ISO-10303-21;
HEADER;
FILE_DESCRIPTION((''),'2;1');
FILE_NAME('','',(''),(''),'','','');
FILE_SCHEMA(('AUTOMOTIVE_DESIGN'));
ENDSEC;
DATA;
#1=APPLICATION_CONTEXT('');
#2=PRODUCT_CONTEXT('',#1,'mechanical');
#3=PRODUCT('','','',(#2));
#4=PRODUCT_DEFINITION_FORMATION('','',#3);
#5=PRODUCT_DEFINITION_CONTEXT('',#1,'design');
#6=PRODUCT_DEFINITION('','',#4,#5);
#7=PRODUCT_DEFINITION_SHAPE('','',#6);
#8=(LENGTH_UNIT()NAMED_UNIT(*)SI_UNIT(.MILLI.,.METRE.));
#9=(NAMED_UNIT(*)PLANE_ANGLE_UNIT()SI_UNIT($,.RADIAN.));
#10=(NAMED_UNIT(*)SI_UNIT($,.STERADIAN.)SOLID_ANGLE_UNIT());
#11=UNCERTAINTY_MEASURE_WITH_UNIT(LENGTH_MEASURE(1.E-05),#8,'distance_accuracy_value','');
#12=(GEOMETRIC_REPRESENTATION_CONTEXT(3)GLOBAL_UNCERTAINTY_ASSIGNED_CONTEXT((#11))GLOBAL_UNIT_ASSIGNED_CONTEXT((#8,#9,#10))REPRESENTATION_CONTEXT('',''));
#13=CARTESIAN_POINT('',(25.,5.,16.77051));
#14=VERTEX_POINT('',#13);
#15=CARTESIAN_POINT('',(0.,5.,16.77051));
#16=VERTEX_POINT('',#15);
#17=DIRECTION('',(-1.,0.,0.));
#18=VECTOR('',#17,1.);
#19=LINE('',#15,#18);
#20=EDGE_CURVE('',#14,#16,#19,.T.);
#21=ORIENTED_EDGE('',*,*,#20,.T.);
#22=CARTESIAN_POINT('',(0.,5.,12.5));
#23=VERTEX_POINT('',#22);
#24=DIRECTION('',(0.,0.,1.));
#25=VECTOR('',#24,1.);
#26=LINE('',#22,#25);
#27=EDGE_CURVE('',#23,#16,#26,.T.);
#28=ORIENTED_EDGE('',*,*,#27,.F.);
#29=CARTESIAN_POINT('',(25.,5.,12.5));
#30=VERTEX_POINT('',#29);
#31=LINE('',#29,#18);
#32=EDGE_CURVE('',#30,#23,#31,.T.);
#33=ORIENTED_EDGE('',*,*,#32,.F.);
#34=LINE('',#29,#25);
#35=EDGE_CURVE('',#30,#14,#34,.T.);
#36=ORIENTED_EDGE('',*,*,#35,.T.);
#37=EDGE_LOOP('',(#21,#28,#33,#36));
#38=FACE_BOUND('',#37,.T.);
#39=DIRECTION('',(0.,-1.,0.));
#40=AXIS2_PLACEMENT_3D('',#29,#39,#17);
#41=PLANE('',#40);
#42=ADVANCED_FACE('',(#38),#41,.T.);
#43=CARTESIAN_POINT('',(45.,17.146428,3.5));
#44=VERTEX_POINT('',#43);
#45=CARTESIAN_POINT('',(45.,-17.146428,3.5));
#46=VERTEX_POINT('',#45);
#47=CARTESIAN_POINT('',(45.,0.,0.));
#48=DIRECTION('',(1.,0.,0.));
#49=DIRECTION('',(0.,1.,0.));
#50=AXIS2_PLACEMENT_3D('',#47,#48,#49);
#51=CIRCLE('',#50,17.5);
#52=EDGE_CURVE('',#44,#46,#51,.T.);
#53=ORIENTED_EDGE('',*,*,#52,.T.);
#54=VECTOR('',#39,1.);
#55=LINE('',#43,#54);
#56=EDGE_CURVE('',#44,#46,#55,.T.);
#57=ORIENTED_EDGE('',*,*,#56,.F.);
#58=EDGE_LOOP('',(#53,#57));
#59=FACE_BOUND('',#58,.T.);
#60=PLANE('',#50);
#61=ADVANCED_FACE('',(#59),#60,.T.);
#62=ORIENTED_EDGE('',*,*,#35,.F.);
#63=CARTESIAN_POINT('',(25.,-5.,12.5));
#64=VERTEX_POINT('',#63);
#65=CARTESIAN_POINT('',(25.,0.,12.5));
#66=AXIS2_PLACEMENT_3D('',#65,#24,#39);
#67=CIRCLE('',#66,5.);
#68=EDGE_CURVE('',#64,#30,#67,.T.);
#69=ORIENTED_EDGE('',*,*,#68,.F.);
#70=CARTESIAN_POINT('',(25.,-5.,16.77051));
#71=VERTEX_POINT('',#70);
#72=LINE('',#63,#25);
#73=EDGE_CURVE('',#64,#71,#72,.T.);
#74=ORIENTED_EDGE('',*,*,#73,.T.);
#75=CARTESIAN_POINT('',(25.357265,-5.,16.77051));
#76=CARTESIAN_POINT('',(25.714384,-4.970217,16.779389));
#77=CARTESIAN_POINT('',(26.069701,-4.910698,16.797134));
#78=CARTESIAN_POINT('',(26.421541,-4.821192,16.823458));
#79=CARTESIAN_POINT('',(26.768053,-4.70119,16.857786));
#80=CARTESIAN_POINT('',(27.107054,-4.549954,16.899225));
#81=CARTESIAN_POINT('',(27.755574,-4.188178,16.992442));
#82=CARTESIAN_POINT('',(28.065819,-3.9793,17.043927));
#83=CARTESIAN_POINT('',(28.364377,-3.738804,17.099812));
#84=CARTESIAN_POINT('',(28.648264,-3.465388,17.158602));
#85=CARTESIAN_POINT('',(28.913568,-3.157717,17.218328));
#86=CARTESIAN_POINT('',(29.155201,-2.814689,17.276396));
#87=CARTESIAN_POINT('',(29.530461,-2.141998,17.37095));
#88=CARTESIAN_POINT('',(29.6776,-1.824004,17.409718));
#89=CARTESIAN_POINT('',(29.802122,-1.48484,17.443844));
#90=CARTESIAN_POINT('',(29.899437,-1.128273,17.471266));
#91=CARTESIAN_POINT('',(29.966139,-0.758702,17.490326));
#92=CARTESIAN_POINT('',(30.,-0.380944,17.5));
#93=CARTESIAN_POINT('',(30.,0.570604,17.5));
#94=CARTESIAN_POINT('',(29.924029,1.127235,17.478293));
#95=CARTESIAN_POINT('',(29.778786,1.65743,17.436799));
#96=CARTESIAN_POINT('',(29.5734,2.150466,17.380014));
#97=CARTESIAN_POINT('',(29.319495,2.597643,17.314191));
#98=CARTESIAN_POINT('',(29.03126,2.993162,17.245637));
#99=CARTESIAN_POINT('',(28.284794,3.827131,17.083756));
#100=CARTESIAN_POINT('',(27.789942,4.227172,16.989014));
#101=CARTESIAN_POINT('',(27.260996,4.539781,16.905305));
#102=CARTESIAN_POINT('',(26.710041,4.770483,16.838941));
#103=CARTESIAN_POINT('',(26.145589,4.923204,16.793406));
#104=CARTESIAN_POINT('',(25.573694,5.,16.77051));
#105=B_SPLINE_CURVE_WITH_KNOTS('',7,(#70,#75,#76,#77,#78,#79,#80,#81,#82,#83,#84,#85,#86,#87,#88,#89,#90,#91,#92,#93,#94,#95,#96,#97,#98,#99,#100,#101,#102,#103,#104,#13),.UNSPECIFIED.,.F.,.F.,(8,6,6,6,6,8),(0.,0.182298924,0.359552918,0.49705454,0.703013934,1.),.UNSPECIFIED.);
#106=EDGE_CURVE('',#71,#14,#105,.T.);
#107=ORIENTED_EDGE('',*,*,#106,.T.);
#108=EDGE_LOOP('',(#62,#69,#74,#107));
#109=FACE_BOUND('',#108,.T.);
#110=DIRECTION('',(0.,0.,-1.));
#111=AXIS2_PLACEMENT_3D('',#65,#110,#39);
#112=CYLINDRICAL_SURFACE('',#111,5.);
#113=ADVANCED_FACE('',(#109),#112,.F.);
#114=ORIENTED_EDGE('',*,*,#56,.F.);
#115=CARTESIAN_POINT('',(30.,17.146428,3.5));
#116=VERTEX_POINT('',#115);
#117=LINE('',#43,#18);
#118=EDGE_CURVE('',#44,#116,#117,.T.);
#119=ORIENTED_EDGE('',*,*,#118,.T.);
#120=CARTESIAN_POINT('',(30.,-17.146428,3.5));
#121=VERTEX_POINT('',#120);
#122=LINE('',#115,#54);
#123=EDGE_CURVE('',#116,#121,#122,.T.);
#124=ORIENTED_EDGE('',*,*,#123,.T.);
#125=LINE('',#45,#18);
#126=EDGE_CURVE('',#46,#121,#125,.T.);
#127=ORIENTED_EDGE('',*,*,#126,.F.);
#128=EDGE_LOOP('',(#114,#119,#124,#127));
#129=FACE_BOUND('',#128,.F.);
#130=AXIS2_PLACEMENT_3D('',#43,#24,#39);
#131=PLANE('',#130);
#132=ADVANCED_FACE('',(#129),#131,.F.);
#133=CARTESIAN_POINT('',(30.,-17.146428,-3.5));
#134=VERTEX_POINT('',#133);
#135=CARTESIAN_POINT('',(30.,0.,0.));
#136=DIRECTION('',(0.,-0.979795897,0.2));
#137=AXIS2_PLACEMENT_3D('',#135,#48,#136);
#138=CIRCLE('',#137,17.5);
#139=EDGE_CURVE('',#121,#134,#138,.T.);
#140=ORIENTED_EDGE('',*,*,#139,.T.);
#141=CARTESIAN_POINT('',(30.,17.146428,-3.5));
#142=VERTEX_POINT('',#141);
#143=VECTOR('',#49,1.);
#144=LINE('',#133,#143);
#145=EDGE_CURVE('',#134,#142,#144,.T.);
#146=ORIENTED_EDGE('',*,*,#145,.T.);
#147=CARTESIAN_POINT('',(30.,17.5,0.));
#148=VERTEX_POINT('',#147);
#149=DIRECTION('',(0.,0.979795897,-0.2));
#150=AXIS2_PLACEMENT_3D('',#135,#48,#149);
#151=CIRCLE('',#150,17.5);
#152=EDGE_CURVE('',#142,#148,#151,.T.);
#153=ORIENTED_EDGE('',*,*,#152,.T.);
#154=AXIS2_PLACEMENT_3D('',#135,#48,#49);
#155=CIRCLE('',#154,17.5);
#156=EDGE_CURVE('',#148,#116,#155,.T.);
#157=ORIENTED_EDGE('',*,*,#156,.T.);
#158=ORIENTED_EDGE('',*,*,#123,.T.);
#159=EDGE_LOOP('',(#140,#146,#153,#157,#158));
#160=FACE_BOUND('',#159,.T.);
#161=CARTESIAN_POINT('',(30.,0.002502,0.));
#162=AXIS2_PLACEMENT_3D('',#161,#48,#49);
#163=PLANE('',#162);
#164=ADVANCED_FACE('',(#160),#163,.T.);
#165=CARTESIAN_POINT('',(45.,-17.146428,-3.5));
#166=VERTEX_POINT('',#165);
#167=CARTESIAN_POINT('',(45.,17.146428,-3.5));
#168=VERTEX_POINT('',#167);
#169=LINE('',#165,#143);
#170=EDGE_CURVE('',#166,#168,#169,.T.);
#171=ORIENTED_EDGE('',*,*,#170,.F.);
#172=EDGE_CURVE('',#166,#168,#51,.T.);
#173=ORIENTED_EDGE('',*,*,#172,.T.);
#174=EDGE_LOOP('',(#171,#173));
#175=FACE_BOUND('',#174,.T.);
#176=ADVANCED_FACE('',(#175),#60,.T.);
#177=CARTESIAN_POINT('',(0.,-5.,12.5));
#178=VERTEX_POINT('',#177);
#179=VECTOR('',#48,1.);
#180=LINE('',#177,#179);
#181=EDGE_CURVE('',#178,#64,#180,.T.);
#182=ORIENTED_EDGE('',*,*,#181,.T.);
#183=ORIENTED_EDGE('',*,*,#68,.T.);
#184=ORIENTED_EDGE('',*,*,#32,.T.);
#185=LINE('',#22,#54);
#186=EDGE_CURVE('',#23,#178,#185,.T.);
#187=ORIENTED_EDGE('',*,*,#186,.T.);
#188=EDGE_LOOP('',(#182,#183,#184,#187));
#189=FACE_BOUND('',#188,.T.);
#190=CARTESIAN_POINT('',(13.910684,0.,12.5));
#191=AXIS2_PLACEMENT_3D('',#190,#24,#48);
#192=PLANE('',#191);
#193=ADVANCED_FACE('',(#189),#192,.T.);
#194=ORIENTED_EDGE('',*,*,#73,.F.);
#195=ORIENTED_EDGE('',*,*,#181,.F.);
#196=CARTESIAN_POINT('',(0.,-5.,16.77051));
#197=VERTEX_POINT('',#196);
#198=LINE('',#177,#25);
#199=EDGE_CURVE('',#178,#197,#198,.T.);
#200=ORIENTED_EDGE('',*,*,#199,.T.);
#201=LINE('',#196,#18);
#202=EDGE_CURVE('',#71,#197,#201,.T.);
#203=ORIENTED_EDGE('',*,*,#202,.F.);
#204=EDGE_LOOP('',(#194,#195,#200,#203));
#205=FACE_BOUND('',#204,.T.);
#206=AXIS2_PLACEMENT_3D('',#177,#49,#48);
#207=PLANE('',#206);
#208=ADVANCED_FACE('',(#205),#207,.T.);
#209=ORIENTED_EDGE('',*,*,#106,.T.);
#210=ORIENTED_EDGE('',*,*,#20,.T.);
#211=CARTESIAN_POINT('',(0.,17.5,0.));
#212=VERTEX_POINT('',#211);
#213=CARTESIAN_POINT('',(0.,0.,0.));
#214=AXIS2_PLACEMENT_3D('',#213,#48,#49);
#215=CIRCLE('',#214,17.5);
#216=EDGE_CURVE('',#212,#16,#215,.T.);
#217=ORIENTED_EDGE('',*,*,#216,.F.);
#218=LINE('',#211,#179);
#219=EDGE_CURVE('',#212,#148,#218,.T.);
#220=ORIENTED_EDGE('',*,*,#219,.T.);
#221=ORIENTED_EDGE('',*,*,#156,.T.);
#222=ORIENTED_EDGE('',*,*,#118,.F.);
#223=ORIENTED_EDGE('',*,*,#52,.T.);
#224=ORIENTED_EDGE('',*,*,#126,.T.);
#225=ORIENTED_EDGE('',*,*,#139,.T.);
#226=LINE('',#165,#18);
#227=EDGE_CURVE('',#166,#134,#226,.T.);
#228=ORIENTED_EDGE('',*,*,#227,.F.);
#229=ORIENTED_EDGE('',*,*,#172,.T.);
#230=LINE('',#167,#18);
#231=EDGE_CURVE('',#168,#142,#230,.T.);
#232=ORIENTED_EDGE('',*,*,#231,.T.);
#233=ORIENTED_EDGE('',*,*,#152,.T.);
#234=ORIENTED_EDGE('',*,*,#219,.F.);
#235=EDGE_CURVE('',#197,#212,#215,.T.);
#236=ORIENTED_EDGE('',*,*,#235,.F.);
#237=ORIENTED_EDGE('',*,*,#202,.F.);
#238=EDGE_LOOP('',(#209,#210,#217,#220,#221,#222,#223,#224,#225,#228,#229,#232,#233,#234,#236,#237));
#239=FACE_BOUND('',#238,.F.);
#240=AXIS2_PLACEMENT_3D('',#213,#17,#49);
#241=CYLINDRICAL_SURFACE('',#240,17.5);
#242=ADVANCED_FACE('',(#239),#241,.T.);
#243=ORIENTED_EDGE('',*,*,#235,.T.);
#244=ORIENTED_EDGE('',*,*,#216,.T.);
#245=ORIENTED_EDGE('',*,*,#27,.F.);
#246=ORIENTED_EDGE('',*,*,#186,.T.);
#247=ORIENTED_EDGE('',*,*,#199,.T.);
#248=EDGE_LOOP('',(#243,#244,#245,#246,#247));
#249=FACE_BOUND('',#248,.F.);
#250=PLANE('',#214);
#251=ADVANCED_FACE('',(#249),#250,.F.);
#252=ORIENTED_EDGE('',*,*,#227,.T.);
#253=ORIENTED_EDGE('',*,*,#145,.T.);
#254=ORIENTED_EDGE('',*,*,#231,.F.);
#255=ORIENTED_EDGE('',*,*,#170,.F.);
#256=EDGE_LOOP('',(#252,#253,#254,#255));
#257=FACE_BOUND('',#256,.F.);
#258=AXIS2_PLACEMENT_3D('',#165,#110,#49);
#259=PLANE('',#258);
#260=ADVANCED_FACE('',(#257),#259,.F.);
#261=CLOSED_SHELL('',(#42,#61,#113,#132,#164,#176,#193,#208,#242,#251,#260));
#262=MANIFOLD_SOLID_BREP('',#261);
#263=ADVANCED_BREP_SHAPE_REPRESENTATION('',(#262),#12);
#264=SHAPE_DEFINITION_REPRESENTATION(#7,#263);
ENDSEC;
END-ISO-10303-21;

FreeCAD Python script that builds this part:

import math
import FreeCAD as App
import Part
import Sketcher

doc = App.newDocument("Part")
body = doc.addObject("PartDesign::Body", "Body")

# Sketch on YZ plane
sketch1 = body.newObject("Sketcher::SketchObject", "Sketch")
sketch1.AttachmentSupport = (doc.getObject("YZ_Plane"), [""])
sketch1.MapMode = "FlatFace"
sketch1.addGeometry(Part.Circle(App.Vector(0, 0, 0), App.Vector(0, 0, 1), 18), False)
sketch1.addConstraint(Sketcher.Constraint("Coincident", 0, 3, -1, 1))
sketch1.addConstraint(Sketcher.Constraint("Diameter", 0, 35.0))
pad1 = body.newObject("PartDesign::Pad", "Pad")
pad1.Profile = sketch1
pad1.Length = 45

# Sketch on YZ plane
sketch2 = body.newObject("Sketcher::SketchObject", "Sketch001")
sketch2.AttachmentSupport = (doc.getObject("YZ_Plane"), [""])
sketch2.MapMode = "FlatFace"
sketch2.AttachmentOffset = App.Placement(App.Vector(0, 0, 45), App.Rotation())
sketch2.addGeometry(Part.LineSegment(App.Vector(17.1, 3.5, 0), App.Vector(-17.1, 3.5, 0)), False)
sketch2.addGeometry(Part.ArcOfCircle(Part.Circle(App.Vector(0, 0, 0), App.Vector(0, 0, 1), 17.5), math.radians(168), math.radians(192)), False)
sketch2.addGeometry(Part.LineSegment(App.Vector(-17.1, -3.5, 0), App.Vector(17.1, -3.5, 0)), False)
sketch2.addGeometry(Part.ArcOfCircle(Part.Circle(App.Vector(0, 0, 0), App.Vector(0, 0, 1), 17.5), math.radians(-11.54), math.radians(0)), False)
sketch2.addGeometry(Part.ArcOfCircle(Part.Circle(App.Vector(0, 0, 0), App.Vector(0, 0, 1), 17.5), math.radians(0), math.radians(11.54)), False)
sketch2.addConstraint(Sketcher.Constraint("Coincident", 0, 2, 1, 1))
sketch2.addConstraint(Sketcher.Constraint("Coincident", 1, 2, 2, 1))
sketch2.addConstraint(Sketcher.Constraint("Coincident", 2, 2, 3, 1))
sketch2.addConstraint(Sketcher.Constraint("Tangent", 3, 2, 4, 1))
sketch2.addConstraint(Sketcher.Constraint("Coincident", 4, 2, 0, 1))
sketch2.addConstraint(Sketcher.Constraint("Horizontal", 0))
sketch2.addConstraint(Sketcher.Constraint("Horizontal", 2))
sketch2.addConstraint(Sketcher.Constraint("Coincident", 1, 3, -1, 1))
sketch2.addConstraint(Sketcher.Constraint("Coincident", 3, 3, -1, 1))
sketch2.addConstraint(Sketcher.Constraint("Equal", 1, 3))
sketch2.addConstraint(Sketcher.Constraint("Equal", 3, 4))
sketch2.addConstraint(Sketcher.Constraint("PointOnObject", 3, 2, -1))
sketch2.addConstraint(Sketcher.Constraint("Vertical", 0, 2, 1, 2))
sketch2.addConstraint(Sketcher.Constraint("Radius", 1, 17.5))
sketch2.addConstraint(Sketcher.Constraint("DistanceY", 1, 2, 0, 2, 7.0))
pocket1 = body.newObject("PartDesign::Pocket", "Pocket")
pocket1.Profile = sketch2
pocket1.Length = 15

# Sketch on XY plane
sketch3 = body.newObject("Sketcher::SketchObject", "Sketch002")
sketch3.AttachmentSupport = (doc.getObject("XY_Plane"), [""])
sketch3.MapMode = "FlatFace"
sketch3.AttachmentOffset = App.Placement(App.Vector(0, 0, 12.5), App.Rotation())
sketch3.addGeometry(Part.LineSegment(App.Vector(25, 5, 0), App.Vector(0, 5, 0)), False)
sketch3.addGeometry(Part.LineSegment(App.Vector(0, 5, 0), App.Vector(0, -5, 0)), False)
sketch3.addGeometry(Part.LineSegment(App.Vector(0, -5, 0), App.Vector(25, -5, 0)), False)
sketch3.addGeometry(Part.ArcOfCircle(Part.Circle(App.Vector(25, 0, 0), App.Vector(0, 0, 1), 5), math.radians(-90), math.radians(90)), False)
sketch3.addConstraint(Sketcher.Constraint("Coincident", 0, 2, 1, 1))
sketch3.addConstraint(Sketcher.Constraint("Coincident", 1, 2, 2, 1))
sketch3.addConstraint(Sketcher.Constraint("Tangent", 2, 2, 3, 1))
sketch3.addConstraint(Sketcher.Constraint("Tangent", 3, 2, 0, 1))
sketch3.addConstraint(Sketcher.Constraint("Horizontal", 0))
sketch3.addConstraint(Sketcher.Constraint("Vertical", 1))
sketch3.addConstraint(Sketcher.Constraint("Horizontal", 2))
sketch3.addConstraint(Sketcher.Constraint("Symmetric", 0, 2, 1, 2, -1, 1))
sketch3.addConstraint(Sketcher.Constraint("Radius", 3, 5.0))
sketch3.addConstraint(Sketcher.Constraint("DistanceX", 0, 2, 0, 1, 25.0))
pocket2 = body.newObject("PartDesign::Pocket", "Pocket001")
pocket2.Profile = sketch3
pocket2.Length = 10
pocket2.Reversed = True

doc.recompute()
